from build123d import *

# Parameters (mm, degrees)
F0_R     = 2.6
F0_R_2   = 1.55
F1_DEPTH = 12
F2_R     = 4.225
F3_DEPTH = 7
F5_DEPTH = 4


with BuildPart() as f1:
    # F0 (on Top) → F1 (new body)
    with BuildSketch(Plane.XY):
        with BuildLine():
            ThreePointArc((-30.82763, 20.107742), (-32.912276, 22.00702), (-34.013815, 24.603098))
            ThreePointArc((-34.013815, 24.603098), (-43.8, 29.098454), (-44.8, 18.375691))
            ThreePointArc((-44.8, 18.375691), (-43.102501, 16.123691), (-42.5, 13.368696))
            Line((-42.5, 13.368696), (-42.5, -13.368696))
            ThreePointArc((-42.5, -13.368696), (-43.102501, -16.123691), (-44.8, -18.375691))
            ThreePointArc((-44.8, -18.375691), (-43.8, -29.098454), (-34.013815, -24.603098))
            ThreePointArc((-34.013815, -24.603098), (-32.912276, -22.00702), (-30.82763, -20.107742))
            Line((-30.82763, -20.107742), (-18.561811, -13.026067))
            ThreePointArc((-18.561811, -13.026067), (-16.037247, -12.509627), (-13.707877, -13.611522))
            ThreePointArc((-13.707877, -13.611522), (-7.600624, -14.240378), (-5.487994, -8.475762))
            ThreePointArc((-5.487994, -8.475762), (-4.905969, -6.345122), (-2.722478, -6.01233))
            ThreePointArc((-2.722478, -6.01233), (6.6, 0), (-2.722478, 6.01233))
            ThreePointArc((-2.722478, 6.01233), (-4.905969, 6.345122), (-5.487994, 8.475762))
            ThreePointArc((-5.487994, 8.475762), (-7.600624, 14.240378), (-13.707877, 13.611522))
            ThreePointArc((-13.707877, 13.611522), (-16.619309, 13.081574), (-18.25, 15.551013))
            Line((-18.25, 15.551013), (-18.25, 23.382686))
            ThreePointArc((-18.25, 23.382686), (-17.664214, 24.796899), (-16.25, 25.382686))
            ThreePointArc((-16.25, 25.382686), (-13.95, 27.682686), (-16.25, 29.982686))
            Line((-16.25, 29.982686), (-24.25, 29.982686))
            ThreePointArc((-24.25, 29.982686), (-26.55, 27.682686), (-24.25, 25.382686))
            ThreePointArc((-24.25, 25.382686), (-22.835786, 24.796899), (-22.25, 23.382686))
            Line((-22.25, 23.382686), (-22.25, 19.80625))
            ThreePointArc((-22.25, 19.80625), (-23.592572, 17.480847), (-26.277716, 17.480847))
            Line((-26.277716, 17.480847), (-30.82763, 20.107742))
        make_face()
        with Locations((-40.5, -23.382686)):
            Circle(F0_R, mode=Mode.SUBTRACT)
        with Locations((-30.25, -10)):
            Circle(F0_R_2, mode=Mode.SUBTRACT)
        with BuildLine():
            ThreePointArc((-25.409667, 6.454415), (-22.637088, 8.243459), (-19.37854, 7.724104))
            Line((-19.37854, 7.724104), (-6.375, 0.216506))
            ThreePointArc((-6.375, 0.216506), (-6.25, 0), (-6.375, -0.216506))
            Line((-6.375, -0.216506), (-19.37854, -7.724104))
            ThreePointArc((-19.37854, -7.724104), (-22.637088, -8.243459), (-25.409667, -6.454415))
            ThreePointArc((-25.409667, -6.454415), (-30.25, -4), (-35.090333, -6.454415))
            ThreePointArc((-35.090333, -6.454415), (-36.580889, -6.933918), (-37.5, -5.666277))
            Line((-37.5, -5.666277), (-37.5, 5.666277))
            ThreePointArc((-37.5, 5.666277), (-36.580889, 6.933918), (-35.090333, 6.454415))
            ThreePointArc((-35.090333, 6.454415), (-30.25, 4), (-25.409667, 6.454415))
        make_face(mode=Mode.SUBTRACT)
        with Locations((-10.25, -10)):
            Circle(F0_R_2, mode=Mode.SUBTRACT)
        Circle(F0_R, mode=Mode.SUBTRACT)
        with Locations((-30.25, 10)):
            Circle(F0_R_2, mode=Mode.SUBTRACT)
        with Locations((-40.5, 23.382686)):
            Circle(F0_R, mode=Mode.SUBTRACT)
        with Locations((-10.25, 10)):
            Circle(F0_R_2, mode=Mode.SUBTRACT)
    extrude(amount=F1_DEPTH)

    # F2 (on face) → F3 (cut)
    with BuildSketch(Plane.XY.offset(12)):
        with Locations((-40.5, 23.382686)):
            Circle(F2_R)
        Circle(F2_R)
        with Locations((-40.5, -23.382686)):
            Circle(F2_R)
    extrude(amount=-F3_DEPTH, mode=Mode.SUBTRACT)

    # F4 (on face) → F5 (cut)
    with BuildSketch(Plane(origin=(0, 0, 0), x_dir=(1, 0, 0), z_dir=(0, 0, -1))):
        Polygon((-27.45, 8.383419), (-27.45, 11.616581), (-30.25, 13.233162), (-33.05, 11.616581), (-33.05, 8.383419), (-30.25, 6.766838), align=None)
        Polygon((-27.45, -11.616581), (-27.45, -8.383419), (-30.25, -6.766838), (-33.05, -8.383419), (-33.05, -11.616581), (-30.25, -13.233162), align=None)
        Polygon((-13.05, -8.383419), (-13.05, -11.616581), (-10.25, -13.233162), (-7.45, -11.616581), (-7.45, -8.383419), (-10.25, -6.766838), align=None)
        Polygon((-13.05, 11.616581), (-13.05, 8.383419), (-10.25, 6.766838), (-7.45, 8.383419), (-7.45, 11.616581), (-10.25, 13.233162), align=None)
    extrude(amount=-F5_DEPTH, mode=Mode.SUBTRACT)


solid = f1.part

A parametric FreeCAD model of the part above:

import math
import FreeCAD as App
import Part
import Sketcher
Q = App.Units.Quantity

doc = App.newDocument("Part")
body = doc.addObject("PartDesign::Body", "Body")

# Sketch on XY plane
sketch1 = body.newObject("Sketcher::SketchObject", "Sketch")
sketch1.AttachmentSupport = (doc.getObject("XY_Plane"), [""])
sketch1.MapMode = "FlatFace"
sketch1.addGeometry([
    Part.ArcOfCircle(Part.Circle(App.Vector(-27.527634, 25.823507, 0), App.Vector(0, 0, 1), 6.599996), math.radians(-169.344081), math.radians(-119.999983)),  # 0
    Part.ArcOfCircle(Part.Circle(App.Vector(-40.5, 23.382686, 0), App.Vector(0, 0, 1), 6.6), math.radians(10.655936), math.radians(229.344065)),  # 1
    Part.ArcOfCircle(Part.Circle(App.Vector(-49.100006, 13.368693, 0), App.Vector(0, 0, 1), 6.600006), math.radians(0.000024), math.radians(49.344041)),  # 2
    Part.LineSegment(App.Vector(-42.5, 13.368696, 0), App.Vector(-42.5, -13.368696, 0)),  # 3
    Part.ArcOfCircle(Part.Circle(App.Vector(-49.100006, -13.368693, 0), App.Vector(0, 0, 1), 6.600006), math.radians(-49.344041), math.radians(-0.000024)),  # 4
    Part.ArcOfCircle(Part.Circle(App.Vector(-40.5, -23.382686, 0), App.Vector(0, 0, 1), 6.6), math.radians(130.655935), math.radians(349.344064)),  # 5
    Part.ArcOfCircle(Part.Circle(App.Vector(-27.527634, -25.823507, 0), App.Vector(0, 0, 1), 6.599996), math.radians(119.999983), math.radians(169.344081)),  # 6
    Part.LineSegment(App.Vector(-30.82763, -20.107742, 0), App.Vector(-18.561811, -13.026067, 0)),  # 7
    Part.ArcOfCircle(Part.Circle(App.Vector(-16.52504, -16.553858, 0), App.Vector(0, 0, 1), 4.073543), math.radians(46.245038), math.radians(119.999999)),  # 8
    Part.ArcOfCircle(Part.Circle(App.Vector(-10.25, -10, 0), App.Vector(0, 0, 1), 5.000001), math.radians(-133.754933), math.radians(17.748988)),  # 9
    Part.ArcOfCircle(Part.Circle(App.Vector(-3.558267, -7.858088, 0), App.Vector(0, 0, 1), 2.02617), math.radians(65.638211), math.radians(197.749016)),  # 10
    Part.ArcOfCircle(Part.Circle(App.Vector(0, 0, 0), App.Vector(0, 0, 1), 6.6), math.radians(-114.361769), math.radians(114.361769)),  # 11
    Part.ArcOfCircle(Part.Circle(App.Vector(-3.558267, 7.858088, 0), App.Vector(0, 0, 1), 2.02617), math.radians(162.250984), math.radians(294.361789)),  # 12
    Part.ArcOfCircle(Part.Circle(App.Vector(-10.25, 10, 0), App.Vector(0, 0, 1), 5.000001), math.radians(-17.748988), math.radians(133.754933)),  # 13
    Part.ArcOfCircle(Part.Circle(App.Vector(-15.564857, 15.551012, 0), App.Vector(0, 0, 1), 2.685143), math.radians(179.999985), math.radians(313.754955)),  # 14
    Part.LineSegment(App.Vector(-18.25, 15.551013, 0), App.Vector(-18.25, 23.382686, 0)),  # 15
    Part.ArcOfCircle(Part.Circle(App.Vector(-16.25, 23.382686, 0), App.Vector(0, 0, 1), 2), math.radians(90.000006), math.radians(179.999994)),  # 16
    Part.ArcOfCircle(Part.Circle(App.Vector(-16.25, 27.682686, 0), App.Vector(0, 0, 1), 2.3), math.radians(-90), math.radians(90)),  # 17
    Part.LineSegment(App.Vector(-16.25, 29.982686, 0), App.Vector(-24.25, 29.982686, 0)),  # 18
    Part.ArcOfCircle(Part.Circle(App.Vector(-24.25, 27.682686, 0), App.Vector(0, 0, 1), 2.3), math.radians(90), math.radians(270)),  # 19
    Part.ArcOfCircle(Part.Circle(App.Vector(-24.25, 23.382686, 0), App.Vector(0, 0, 1), 2), math.radians(0.000006), math.radians(89.999994)),  # 20
    Part.LineSegment(App.Vector(-22.25, 23.382686, 0), App.Vector(-22.25, 19.80625, 0)),  # 21
    Part.ArcOfCircle(Part.Circle(App.Vector(-24.935144, 19.80625, 0), App.Vector(0, 0, 1), 2.685144), math.radians(-120), math.radians(0.000002)),  # 22
    Part.LineSegment(App.Vector(-26.277716, 17.480847, 0), App.Vector(-30.82763, 20.107742, 0)),  # 23
    Part.Circle(App.Vector(-40.5, -23.382686, 0), App.Vector(0, 0, 1), 2.6),  # 24
    Part.Circle(App.Vector(-30.25, -10, 0), App.Vector(0, 0, 1), 1.55),  # 25
    Part.Circle(App.Vector(-10.25, -10, 0), App.Vector(0, 0, 1), 1.55),  # 26
    Part.ArcOfCircle(Part.Circle(App.Vector(-30.25, 9.999999, 0), App.Vector(0, 0, 1), 5.999999), math.radians(-143.776913), math.radians(-36.223087)),  # 27
    Part.ArcOfCircle(Part.Circle(App.Vector(-21.686271, 3.726995, 0), App.Vector(0, 0, 1), 4.615463), math.radians(60.000015), math.radians(143.776902)),  # 28
    Part.LineSegment(App.Vector(-19.37854, 7.724104, 0), App.Vector(-6.375, 0.216506, 0)),  # 29
    Part.ArcOfCircle(Part.Circle(App.Vector(-6.499999, 0, 0), App.Vector(0, 0, 1), 0.249999), math.radians(-60.00008), math.radians(60.00008)),  # 30
    Part.LineSegment(App.Vector(-6.375, -0.216506, 0), App.Vector(-19.37854, -7.724104, 0)),  # 31
    Part.ArcOfCircle(Part.Circle(App.Vector(-21.686271, -3.726995, 0), App.Vector(0, 0, 1), 4.615463), math.radians(-143.776902), math.radians(-60.000015)),  # 32
    Part.ArcOfCircle(Part.Circle(App.Vector(-30.25, -9.999999, 0), App.Vector(0, 0, 1), 5.999999), math.radians(36.223087), math.radians(143.776913)),  # 33
    Part.ArcOfCircle(Part.Circle(App.Vector(-36.166277, -5.666277, 0), App.Vector(0, 0, 1), 1.333723), math.radians(-179.999995), math.radians(-36.223093)),  # 34
    Part.LineSegment(App.Vector(-37.5, -5.666277, 0), App.Vector(-37.5, 5.666277, 0)),  # 35
    Part.ArcOfCircle(Part.Circle(App.Vector(-36.166277, 5.666277, 0), App.Vector(0, 0, 1), 1.333723), math.radians(36.223093), math.radians(179.999995)),  # 36
    Part.Circle(App.Vector(-30.25, 10, 0), App.Vector(0, 0, 1), 1.55),  # 37
    Part.Circle(App.Vector(-40.5, 23.382686, 0), App.Vector(0, 0, 1), 2.6),  # 38
    Part.Circle(App.Vector(-10.25, 10, 0), App.Vector(0, 0, 1), 1.55),  # 39
    Part.Circle(App.Vector(0, 0, 0), App.Vector(0, 0, 1), 2.6),  # 40
], False)
sketch1.addConstraint([
    Sketcher.Constraint("Tangent", 0, 1, 1, 1),
    Sketcher.Constraint("Tangent", 1, 2, 2, 2),
    Sketcher.Constraint("Tangent", 2, 1, 3, 1),
    Sketcher.Constraint("Tangent", 3, 2, 4, 2),
    Sketcher.Constraint("Tangent", 4, 1, 5, 1),
    Sketcher.Constraint("Tangent", 5, 2, 6, 2),
    Sketcher.Constraint("Tangent", 6, 1, 7, 1),
    Sketcher.Constraint("Tangent", 7, 2, 8, 2),
    Sketcher.Constraint("Tangent", 8, 1, 9, 1),
    Sketcher.Constraint("Tangent", 9, 2, 10, 2),
    Sketcher.Constraint("Tangent", 10, 1, 11, 1),
    Sketcher.Constraint("Tangent", 11, 2, 12, 2),
    Sketcher.Constraint("Tangent", 12, 1, 13, 1),
    Sketcher.Constraint("Tangent", 13, 2, 14, 2),
    Sketcher.Constraint("Tangent", 14, 1, 15, 1),
    Sketcher.Constraint("Tangent", 15, 2, 16, 2),
    Sketcher.Constraint("Tangent", 16, 1, 17, 1),
    Sketcher.Constraint("Tangent", 17, 2, 18, 1),
    Sketcher.Constraint("Tangent", 18, 2, 19, 1),
    Sketcher.Constraint("Tangent", 19, 2, 20, 2),
    Sketcher.Constraint("Tangent", 20, 1, 21, 1),
    Sketcher.Constraint("Tangent", 21, 2, 22, 2),
    Sketcher.Constraint("Tangent", 22, 1, 23, 1),
    Sketcher.Constraint("Tangent", 23, 2, 0, 2),
    Sketcher.Constraint("Tangent", 27, 2, 28, 2),
    Sketcher.Constraint("Tangent", 28, 1, 29, 1),
    Sketcher.Constraint("Tangent", 29, 2, 30, 2),
    Sketcher.Constraint("Tangent", 30, 1, 31, 1),
    Sketcher.Constraint("Tangent", 31, 2, 32, 2),
    Sketcher.Constraint("Tangent", 32, 1, 33, 1),
    Sketcher.Constraint("Tangent", 33, 2, 34, 2),
    Sketcher.Constraint("Tangent", 34, 1, 35, 1),
    Sketcher.Constraint("Tangent", 35, 2, 36, 2),
    Sketcher.Constraint("Tangent", 36, 1, 27, 1),
    Sketcher.Constraint("Vertical", 3),
    Sketcher.Constraint("Vertical", 15),
    Sketcher.Constraint("Horizontal", 18),
    Sketcher.Constraint("Vertical", 21),
    Sketcher.Constraint("Vertical", 35),
    Sketcher.Constraint("Coincident", 11, 3, -1, 1),
    Sketcher.Constraint("Coincident", 40, 3, -1, 1),
    Sketcher.Constraint("Coincident", 24, 3, 5, 3),
    Sketcher.Constraint("Coincident", 26, 3, 9, 3),
    Sketcher.Constraint("Coincident", 33, 3, 25, 3),
    Sketcher.Constraint("Coincident", 37, 3, 27, 3),
    Sketcher.Constraint("Coincident", 38, 3, 1, 3),
    Sketcher.Constraint("Coincident", 39, 3, 13, 3),
    Sketcher.Constraint("Equal", 2, 4),
    Sketcher.Constraint("Equal", 1, 5),
    Sketcher.Constraint("Equal", 0, 6),
    Sketcher.Constraint("Equal", 5, 11),
    Sketcher.Constraint("Equal", 10, 12),
    Sketcher.Constraint("Equal", 9, 13),
    Sketcher.Constraint("Equal", 17, 19),
    Sketcher.Constraint("Equal", 16, 20),
    Sketcher.Constraint("Equal", 14, 22),
    Sketcher.Constraint("Equal", 25, 26),
    Sketcher.Constraint("Equal", 28, 32),
    Sketcher.Constraint("Equal", 27, 33),
    Sketcher.Constraint("Equal", 34, 36),
    Sketcher.Constraint("Equal", 26, 37),
    Sketcher.Constraint("Equal", 24, 38),
    Sketcher.Constraint("Equal", 37, 39),
    Sketcher.Constraint("Equal", 38, 40),
    Sketcher.Constraint("Symmetric", 1, 3, 5, 3, -1),
    Sketcher.Constraint("Symmetric", 9, 3, 13, 3, -1),
    Sketcher.Constraint("Symmetric", 25, 3, 27, 3, -1),
    Sketcher.Constraint("Symmetric", 6, 1, 23, 2, -1),
    Sketcher.Constraint("Symmetric", 29, 2, 30, 1, -1),
    Sketcher.Constraint("Parallel", 23, 29),
    Sketcher.Constraint("Horizontal", 1, 3, 16, 3),
    Sketcher.Constraint("Horizontal", 9, 3, 25, 3),
    Sketcher.Constraint("Horizontal", 32, 1, 33, 2),
    Sketcher.Constraint("Vertical", 16, 3, 17, 3),
    Sketcher.Constraint("Vertical", 19, 3, 20, 3),
    Sketcher.Constraint("Vertical", 8, 1, 13, 2),
    Sketcher.Constraint("Radius", 9, 5.000001),
    Sketcher.Constraint("Radius", 16, 2.0),
    Sketcher.Constraint("Radius", 27, 5.999999),
    Sketcher.Constraint("Diameter", 24, 5.2),
    Sketcher.Constraint("Diameter", 25, 3.1),
    Sketcher.Constraint("Radius", 1, 6.6),
    Sketcher.Constraint("Radius", 17, 2.3),
    Sketcher.Constraint("DistanceX", 18, 2, 18, 1, 8.0),
    Sketcher.Constraint("Angle", 7, Q("30.000004 deg")),
    Sketcher.Constraint("Radius", 30, 0.249999),
    Sketcher.Constraint("DistanceY", 9, 3, -1, 1, 10.0),
    Sketcher.Constraint("DistanceX", 1, 3, -1, 1, 40.5),
    Sketcher.Constraint("DistanceX", 30, 3, -1, 1, 6.499999),
    Sketcher.Constraint("DistanceX", 1, 2, -1, 1, 44.8),
    Sketcher.Constraint("DistanceX", 2, 1, -1, 1, 42.5),
    Sketcher.Constraint("DistanceX", 34, 1, -1, 1, 37.5),
    Sketcher.Constraint("DistanceX", 9, 3, -1, 1, 10.25),
    Sketcher.Constraint("DistanceX", 16, 3, -1, 1, 16.25),
    Sketcher.Constraint("DistanceX", 25, 3, -1, 1, 30.25),
    Sketcher.Constraint("Radius", 10, 2.02617),
    Sketcher.Constraint("Radius", 0, 6.599996),
    Sketcher.Constraint("Radius", 8, 4.073543),
    Sketcher.Constraint("Radius", 14, 2.685143),
    Sketcher.Constraint("Radius", 28, 4.615463),
    Sketcher.Constraint("DistanceY", 3, 2, 3, 1, 26.737392),
])
pad1 = body.newObject("PartDesign::Pad", "Pad")
pad1.Profile = sketch1
pad1.Length = 12

# Sketch on XY plane
sketch2 = body.newObject("Sketcher::SketchObject", "Sketch001")
sketch2.AttachmentSupport = (doc.getObject("XY_Plane"), [""])
sketch2.MapMode = "FlatFace"
sketch2.AttachmentOffset = App.Placement(App.Vector(0, 0, 12), App.Rotation())
sketch2.addGeometry([
    Part.Circle(App.Vector(-40.5, 23.382686, 0), App.Vector(0, 0, 1), 4.225),
    Part.Circle(App.Vector(0, 0, 0), App.Vector(0, 0, 1), 4.225),
    Part.Circle(App.Vector(-40.5, -23.382686, 0), App.Vector(0, 0, 1), 4.225),
], False)
sketch2.addConstraint([
    Sketcher.Constraint("Coincident", 1, 3, -1, 1),
    Sketcher.Constraint("Equal", 0, 1),
    Sketcher.Constraint("Equal", 1, 2),
    Sketcher.Constraint("Symmetric", 0, 3, 2, 3, -1),
    Sketcher.Constraint("Diameter", 0, 8.45),
    Sketcher.Constraint("DistanceX", 0, 3, -1, 1, 40.5),
    Sketcher.Constraint("DistanceY", -1, 1, 0, 3, 23.382686),
])
pocket1 = body.newObject("PartDesign::Pocket", "Pocket")
pocket1.Profile = sketch2
pocket1.Length = 7

# Sketch on XY plane
sketch3 = body.newObject("Sketcher::SketchObject", "Sketch002")
sketch3.AttachmentSupport = (doc.getObject("XY_Plane"), [""])
sketch3.MapMode = "FlatFace"
sketch3.addGeometry([
    Part.LineSegment(App.Vector(-27.45, -8.383419, 0), App.Vector(-27.45, -11.616581, 0)),  # 0
    Part.LineSegment(App.Vector(-27.45, -11.616581, 0), App.Vector(-30.25, -13.233162, 0)),  # 1
    Part.LineSegment(App.Vector(-30.25, -13.233162, 0), App.Vector(-33.05, -11.616581, 0)),  # 2
    Part.LineSegment(App.Vector(-33.05, -11.616581, 0), App.Vector(-33.05, -8.383419, 0)),  # 3
    Part.LineSegment(App.Vector(-33.05, -8.383419, 0), App.Vector(-30.25, -6.766838, 0)),  # 4
    Part.LineSegment(App.Vector(-30.25, -6.766838, 0), App.Vector(-27.45, -8.383419, 0)),  # 5
    Part.LineSegment(App.Vector(-27.45, 11.616581, 0), App.Vector(-27.45, 8.383419, 0)),  # 6
    Part.LineSegment(App.Vector(-27.45, 8.383419, 0), App.Vector(-30.25, 6.766838, 0)),  # 7
    Part.LineSegment(App.Vector(-30.25, 6.766838, 0), App.Vector(-33.05, 8.383419, 0)),  # 8
    Part.LineSegment(App.Vector(-33.05, 8.383419, 0), App.Vector(-33.05, 11.616581, 0)),  # 9
    Part.LineSegment(App.Vector(-33.05, 11.616581, 0), App.Vector(-30.25, 13.233162, 0)),  # 10
    Part.LineSegment(App.Vector(-30.25, 13.233162, 0), App.Vector(-27.45, 11.616581, 0)),  # 11
    Part.LineSegment(App.Vector(-13.05, 8.383419, 0), App.Vector(-13.05, 11.616581, 0)),  # 12
    Part.LineSegment(App.Vector(-13.05, 11.616581, 0), App.Vector(-10.25, 13.233162, 0)),  # 13
    Part.LineSegment(App.Vector(-10.25, 13.233162, 0), App.Vector(-7.45, 11.616581, 0)),  # 14
    Part.LineSegment(App.Vector(-7.45, 11.616581, 0), App.Vector(-7.45, 8.383419, 0)),  # 15
    Part.LineSegment(App.Vector(-7.45, 8.383419, 0), App.Vector(-10.25, 6.766838, 0)),  # 16
    Part.LineSegment(App.Vector(-10.25, 6.766838, 0), App.Vector(-13.05, 8.383419, 0)),  # 17
    Part.LineSegment(App.Vector(-13.05, -11.616581, 0), App.Vector(-13.05, -8.383419, 0)),  # 18
    Part.LineSegment(App.Vector(-13.05, -8.383419, 0), App.Vector(-10.25, -6.766838, 0)),  # 19
    Part.LineSegment(App.Vector(-10.25, -6.766838, 0), App.Vector(-7.45, -8.383419, 0)),  # 20
    Part.LineSegment(App.Vector(-7.45, -8.383419, 0), App.Vector(-7.45, -11.616581, 0)),  # 21
    Part.LineSegment(App.Vector(-7.45, -11.616581, 0), App.Vector(-10.25, -13.233162, 0)),  # 22
    Part.LineSegment(App.Vector(-10.25, -13.233162, 0), App.Vector(-13.05, -11.616581, 0)),  # 23
], False)
sketch3.addConstraint([
    Sketcher.Constraint("Coincident", 0, 2, 1, 1),
    Sketcher.Constraint("Coincident", 1, 2, 2, 1),
    Sketcher.Constraint("Coincident", 2, 2, 3, 1),
    Sketcher.Constraint("Coincident", 3, 2, 4, 1),
    Sketcher.Constraint("Coincident", 4, 2, 5, 1),
    Sketcher.Constraint("Coincident", 5, 2, 0, 1),
    Sketcher.Constraint("Coincident", 6, 2, 7, 1),
    Sketcher.Constraint("Coincident", 7, 2, 8, 1),
    Sketcher.Constraint("Coincident", 8, 2, 9, 1),
    Sketcher.Constraint("Coincident", 9, 2, 10, 1),
    Sketcher.Constraint("Coincident", 10, 2, 11, 1),
    Sketcher.Constraint("Coincident", 11, 2, 6, 1),
    Sketcher.Constraint("Coincident", 12, 2, 13, 1),
    Sketcher.Constraint("Coincident", 13, 2, 14, 1),
    Sketcher.Constraint("Coincident", 14, 2, 15, 1),
    Sketcher.Constraint("Coincident", 15, 2, 16, 1),
    Sketcher.Constraint("Coincident", 16, 2, 17, 1),
    Sketcher.Constraint("Coincident", 17, 2, 12, 1),
    Sketcher.Constraint("Coincident", 18, 2, 19, 1),
    Sketcher.Constraint("Coincident", 19, 2, 20, 1),
    Sketcher.Constraint("Coincident", 20, 2, 21, 1),
    Sketcher.Constraint("Coincident", 21, 2, 22, 1),
    Sketcher.Constraint("Coincident", 22, 2, 23, 1),
    Sketcher.Constraint("Coincident", 23, 2, 18, 1),
    Sketcher.Constraint("Vertical", 0),
    Sketcher.Constraint("Vertical", 3),
    Sketcher.Constraint("Vertical", 6),
    Sketcher.Constraint("Vertical", 9),
    Sketcher.Constraint("Vertical", 12),
    Sketcher.Constraint("Vertical", 15),
    Sketcher.Constraint("Vertical", 18),
    Sketcher.Constraint("Vertical", 21),
    Sketcher.Constraint("Symmetric", 5, 2, 6, 2, -1),
    Sketcher.Constraint("Symmetric", 4, 2, 7, 2, -1),
    Sketcher.Constraint("Symmetric", 3, 2, 8, 2, -1),
    Sketcher.Constraint("Symmetric", 1, 2, 10, 2, -1),
    Sketcher.Constraint("Symmetric", 17, 2, 18, 2, -1),
    Sketcher.Constraint("Symmetric", 16, 2, 19, 2, -1),
    Sketcher.Constraint("Symmetric", 15, 2, 20, 2, -1),
    Sketcher.Constraint("Symmetric", 13, 2, 22, 2, -1),
    Sketcher.Constraint("Parallel", 1, 4),
    Sketcher.Constraint("Parallel", 2, 5),
    Sketcher.Constraint("Parallel", 4, 7),
    Sketcher.Constraint("Parallel", 7, 10),
    Sketcher.Constraint("Parallel", 8, 11),
    Sketcher.Constraint("Parallel", 10, 13),
    Sketcher.Constraint("Parallel", 11, 14),
    Sketcher.Constraint("Parallel", 13, 16),
    Sketcher.Constraint("Parallel", 14, 17),
    Sketcher.Constraint("Parallel", 19, 22),
    Sketcher.Constraint("Parallel", 20, 23),
    Sketcher.Constraint("Horizontal", 0, 2, 2, 2),
    Sketcher.Constraint("Horizontal", 3, 2, 5, 2),
    Sketcher.Constraint("Horizontal", 11, 2, 12, 2),
    Sketcher.Constraint("Horizontal", 10, 2, 13, 2),
    Sketcher.Constraint("Horizontal", 12, 2, 14, 2),
    Sketcher.Constraint("Horizontal", 8, 2, 15, 2),
    Sketcher.Constraint("Horizontal", 7, 2, 16, 2),
    Sketcher.Constraint("Angle", 1, Q("-149.999996 deg")),
    Sketcher.Constraint("DistanceY", 0, 2, 6, 2, 20.0),
    Sketcher.Constraint("DistanceX", 9, 2, 12, 2, 20.0),
    Sketcher.Constraint("DistanceX", 1, 2, 0, 2, 2.8),
    Sketcher.Constraint("DistanceX", 0, 2, -1, 1, 27.45),
    Sketcher.Constraint("DistanceY", 0, 2, 0, 1, 3.233162),
])
pocket2 = body.newObject("PartDesign::Pocket", "Pocket001")
pocket2.Profile = sketch3
pocket2.Length = 4
pocket2.Reversed = True

doc.recompute()
